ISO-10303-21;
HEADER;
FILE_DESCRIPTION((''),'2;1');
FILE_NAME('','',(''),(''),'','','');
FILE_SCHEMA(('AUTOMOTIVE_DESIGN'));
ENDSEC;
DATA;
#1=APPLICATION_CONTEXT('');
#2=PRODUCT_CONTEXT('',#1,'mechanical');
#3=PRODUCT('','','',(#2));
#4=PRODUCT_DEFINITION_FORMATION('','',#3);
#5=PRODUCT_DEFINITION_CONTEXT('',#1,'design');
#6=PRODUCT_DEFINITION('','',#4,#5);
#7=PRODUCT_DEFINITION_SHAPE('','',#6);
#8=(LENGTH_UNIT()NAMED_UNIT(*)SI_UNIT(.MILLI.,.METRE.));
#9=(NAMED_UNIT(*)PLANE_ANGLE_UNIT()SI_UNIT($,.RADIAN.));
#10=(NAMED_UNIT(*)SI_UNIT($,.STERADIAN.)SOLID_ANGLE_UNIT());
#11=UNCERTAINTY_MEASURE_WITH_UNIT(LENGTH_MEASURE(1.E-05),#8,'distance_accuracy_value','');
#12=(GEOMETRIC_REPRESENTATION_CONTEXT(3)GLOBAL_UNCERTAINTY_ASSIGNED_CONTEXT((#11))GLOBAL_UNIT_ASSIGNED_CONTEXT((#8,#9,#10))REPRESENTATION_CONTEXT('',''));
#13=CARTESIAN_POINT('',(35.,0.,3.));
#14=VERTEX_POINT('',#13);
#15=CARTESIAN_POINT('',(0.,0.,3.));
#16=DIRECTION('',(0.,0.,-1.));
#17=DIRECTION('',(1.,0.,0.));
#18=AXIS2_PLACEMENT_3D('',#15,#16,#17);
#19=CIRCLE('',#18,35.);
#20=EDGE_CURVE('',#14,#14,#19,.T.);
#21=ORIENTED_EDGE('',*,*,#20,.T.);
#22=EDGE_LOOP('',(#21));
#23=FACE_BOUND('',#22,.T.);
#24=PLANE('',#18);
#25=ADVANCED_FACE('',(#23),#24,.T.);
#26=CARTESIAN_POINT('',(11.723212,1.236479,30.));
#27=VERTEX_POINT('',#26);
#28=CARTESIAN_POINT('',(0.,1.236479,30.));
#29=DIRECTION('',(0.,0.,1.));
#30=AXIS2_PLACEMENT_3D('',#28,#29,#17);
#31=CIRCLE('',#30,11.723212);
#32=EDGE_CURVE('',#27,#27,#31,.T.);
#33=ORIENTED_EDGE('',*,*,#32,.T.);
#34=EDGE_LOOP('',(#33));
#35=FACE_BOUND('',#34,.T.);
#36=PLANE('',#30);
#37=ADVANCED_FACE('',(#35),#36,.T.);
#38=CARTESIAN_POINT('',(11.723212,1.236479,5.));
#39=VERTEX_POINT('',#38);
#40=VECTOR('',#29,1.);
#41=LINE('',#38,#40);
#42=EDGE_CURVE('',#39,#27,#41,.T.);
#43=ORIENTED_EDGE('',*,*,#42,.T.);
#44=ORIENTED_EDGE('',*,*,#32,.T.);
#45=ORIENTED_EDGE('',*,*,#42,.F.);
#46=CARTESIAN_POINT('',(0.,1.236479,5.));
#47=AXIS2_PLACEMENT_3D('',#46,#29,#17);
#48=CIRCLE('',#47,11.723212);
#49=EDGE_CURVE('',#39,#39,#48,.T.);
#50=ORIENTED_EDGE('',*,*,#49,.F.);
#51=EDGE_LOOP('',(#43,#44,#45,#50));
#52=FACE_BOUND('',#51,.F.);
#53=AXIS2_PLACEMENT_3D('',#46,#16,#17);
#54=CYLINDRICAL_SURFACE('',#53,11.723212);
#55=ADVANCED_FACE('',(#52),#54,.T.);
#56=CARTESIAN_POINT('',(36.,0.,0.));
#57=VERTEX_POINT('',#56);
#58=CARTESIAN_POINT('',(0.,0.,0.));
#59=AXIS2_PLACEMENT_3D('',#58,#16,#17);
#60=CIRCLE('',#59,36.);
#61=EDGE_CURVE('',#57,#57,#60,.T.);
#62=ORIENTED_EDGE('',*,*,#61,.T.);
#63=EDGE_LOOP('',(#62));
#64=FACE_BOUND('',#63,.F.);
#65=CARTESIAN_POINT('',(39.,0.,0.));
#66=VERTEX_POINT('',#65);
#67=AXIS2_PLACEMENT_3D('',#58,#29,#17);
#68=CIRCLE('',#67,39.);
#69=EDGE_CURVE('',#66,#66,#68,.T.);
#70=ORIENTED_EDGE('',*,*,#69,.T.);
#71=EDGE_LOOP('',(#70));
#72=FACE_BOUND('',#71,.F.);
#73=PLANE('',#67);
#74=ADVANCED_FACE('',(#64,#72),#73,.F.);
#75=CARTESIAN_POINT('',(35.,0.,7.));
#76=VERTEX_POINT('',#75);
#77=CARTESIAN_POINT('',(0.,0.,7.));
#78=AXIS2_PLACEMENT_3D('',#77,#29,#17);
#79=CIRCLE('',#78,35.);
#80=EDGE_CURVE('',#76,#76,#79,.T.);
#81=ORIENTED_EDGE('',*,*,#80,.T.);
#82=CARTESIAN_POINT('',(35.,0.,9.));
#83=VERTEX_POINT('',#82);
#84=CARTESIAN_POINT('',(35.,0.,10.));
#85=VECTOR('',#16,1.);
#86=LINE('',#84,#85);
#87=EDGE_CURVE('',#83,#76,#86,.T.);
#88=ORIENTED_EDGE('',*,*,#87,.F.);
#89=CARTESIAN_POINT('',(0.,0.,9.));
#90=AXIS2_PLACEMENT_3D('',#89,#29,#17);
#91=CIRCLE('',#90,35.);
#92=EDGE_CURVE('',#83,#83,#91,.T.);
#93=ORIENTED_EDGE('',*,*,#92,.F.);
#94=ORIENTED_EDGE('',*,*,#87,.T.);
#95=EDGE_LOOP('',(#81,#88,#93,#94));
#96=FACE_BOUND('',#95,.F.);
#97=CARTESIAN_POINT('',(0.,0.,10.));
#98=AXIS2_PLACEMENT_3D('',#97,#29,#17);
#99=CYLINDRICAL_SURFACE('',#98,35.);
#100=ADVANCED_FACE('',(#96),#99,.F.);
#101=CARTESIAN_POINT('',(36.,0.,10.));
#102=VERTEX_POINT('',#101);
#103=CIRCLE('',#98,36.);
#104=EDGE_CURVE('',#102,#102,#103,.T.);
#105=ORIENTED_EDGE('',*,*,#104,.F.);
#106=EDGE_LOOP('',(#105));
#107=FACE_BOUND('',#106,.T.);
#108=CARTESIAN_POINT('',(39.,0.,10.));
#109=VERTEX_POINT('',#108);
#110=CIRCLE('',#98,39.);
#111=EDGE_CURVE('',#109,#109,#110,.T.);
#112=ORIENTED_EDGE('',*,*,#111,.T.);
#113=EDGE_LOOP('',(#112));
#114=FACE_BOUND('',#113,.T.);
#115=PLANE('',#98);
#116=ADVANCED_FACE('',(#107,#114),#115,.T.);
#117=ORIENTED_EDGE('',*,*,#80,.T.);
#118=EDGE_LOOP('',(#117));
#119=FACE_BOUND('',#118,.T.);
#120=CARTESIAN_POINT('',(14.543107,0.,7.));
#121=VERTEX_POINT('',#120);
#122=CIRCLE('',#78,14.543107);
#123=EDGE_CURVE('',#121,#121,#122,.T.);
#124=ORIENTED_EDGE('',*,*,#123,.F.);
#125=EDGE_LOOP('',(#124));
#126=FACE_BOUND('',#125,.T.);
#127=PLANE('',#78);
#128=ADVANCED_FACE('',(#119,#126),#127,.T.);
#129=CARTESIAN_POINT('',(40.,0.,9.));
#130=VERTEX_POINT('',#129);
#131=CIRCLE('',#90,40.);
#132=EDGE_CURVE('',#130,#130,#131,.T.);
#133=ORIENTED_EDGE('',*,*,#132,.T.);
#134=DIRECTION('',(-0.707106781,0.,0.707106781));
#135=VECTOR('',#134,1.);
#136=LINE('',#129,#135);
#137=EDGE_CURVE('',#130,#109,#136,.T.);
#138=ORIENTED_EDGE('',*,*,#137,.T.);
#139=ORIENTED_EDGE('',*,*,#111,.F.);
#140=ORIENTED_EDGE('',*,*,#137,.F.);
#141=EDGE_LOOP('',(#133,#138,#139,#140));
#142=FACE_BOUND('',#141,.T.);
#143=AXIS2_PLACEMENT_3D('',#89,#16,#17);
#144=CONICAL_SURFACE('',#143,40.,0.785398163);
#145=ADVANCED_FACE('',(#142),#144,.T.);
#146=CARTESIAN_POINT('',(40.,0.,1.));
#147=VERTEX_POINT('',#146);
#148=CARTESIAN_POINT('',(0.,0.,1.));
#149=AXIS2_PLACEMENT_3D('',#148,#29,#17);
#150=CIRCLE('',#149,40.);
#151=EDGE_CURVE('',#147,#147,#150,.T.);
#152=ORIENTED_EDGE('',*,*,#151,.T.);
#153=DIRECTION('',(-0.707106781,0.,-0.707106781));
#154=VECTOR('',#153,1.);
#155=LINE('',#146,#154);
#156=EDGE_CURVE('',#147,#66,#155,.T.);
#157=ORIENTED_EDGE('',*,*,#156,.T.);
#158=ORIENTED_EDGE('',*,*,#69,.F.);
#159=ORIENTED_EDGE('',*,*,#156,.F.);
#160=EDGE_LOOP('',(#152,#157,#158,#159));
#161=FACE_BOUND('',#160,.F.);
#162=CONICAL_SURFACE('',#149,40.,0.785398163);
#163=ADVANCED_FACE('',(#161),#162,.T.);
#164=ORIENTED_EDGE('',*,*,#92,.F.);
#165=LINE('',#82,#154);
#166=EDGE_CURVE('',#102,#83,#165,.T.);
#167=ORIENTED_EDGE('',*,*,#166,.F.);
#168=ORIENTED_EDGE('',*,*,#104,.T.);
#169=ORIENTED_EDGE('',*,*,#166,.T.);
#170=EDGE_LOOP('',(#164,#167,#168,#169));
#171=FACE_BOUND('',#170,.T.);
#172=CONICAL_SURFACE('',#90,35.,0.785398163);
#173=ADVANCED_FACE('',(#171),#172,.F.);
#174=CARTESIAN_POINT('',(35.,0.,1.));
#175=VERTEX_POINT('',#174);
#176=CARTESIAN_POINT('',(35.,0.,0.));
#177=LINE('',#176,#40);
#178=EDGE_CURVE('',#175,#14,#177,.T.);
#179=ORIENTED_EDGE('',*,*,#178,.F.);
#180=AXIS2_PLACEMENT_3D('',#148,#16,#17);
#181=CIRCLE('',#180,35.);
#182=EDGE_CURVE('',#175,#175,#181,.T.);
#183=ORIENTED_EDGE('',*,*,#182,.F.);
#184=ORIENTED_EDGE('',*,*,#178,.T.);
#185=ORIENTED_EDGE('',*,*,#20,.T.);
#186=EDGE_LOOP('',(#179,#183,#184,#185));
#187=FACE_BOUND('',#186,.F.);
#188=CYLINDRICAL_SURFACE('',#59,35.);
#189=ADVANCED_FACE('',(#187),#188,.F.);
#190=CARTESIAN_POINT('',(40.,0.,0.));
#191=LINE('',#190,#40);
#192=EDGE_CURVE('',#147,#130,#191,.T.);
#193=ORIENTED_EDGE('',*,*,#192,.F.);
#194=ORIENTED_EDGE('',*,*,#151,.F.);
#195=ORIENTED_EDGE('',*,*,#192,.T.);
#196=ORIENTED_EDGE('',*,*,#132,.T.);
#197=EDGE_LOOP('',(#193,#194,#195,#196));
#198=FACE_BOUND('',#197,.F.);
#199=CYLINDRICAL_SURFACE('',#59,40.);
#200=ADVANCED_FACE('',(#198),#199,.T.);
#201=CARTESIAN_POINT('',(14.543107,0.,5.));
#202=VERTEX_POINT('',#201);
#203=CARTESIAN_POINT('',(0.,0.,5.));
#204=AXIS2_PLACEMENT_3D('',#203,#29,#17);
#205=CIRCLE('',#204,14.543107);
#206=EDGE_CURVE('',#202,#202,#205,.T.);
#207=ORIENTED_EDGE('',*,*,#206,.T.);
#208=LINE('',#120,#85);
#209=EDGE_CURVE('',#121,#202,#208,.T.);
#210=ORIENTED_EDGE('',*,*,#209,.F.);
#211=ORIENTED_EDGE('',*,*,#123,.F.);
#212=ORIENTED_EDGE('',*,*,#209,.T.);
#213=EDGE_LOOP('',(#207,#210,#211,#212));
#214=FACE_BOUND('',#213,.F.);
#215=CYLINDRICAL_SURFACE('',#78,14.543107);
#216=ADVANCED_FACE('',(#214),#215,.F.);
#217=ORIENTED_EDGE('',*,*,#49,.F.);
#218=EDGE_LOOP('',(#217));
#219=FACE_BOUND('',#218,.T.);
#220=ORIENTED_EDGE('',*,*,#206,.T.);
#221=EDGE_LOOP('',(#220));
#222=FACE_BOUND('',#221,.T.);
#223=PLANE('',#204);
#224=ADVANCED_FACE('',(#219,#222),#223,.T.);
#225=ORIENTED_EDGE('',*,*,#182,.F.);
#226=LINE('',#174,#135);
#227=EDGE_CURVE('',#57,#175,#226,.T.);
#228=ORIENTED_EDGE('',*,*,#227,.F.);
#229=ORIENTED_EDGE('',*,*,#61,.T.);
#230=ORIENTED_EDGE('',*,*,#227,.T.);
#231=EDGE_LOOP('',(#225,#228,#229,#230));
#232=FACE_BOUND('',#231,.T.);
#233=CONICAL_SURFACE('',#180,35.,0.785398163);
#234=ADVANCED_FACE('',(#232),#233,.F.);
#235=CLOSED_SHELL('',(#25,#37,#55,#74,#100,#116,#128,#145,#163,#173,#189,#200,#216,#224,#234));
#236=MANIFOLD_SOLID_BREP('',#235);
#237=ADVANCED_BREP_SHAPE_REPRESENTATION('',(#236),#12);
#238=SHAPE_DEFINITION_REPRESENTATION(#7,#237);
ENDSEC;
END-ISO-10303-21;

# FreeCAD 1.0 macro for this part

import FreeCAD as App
import Part
import Sketcher


def edges_at(feature, points):
    """Names of the edges that pass closest to the given points."""
    edges = feature.Shape.Edges
    near = lambda p: min(range(len(edges)), key=lambda i: edges[i].distToShape(Part.Vertex(*p))[0])
    return sorted({f"Edge{near(p) + 1}" for p in points})

doc = App.newDocument("Part")
body = doc.addObject("PartDesign::Body", "Body")

sketch1 = body.newObject("Sketcher::SketchObject", "Sketch")
sketch1.AttachmentSupport = (doc.getObject("XY_Plane"), [""])
sketch1.MapMode = "FlatFace"
sketch1.addGeometry(Part.Circle(App.Vector(0, 0, 0), App.Vector(0, 0, 1), 40), False)
sketch1.addConstraint([
    Sketcher.Constraint("Coincident", 0, 3, -1, 1),
    Sketcher.Constraint("Diameter", 0, 80.0),
])
pad1 = body.newObject("PartDesign::Pad", "Pad")
pad1.Profile = sketch1
pad1.Length = 10

sketch2 = body.newObject("Sketcher::SketchObject", "Sketch001")
sketch2.AttachmentSupport = (doc.getObject("XY_Plane"), [""])
sketch2.MapMode = "FlatFace"
sketch2.AttachmentOffset = App.Placement(App.Vector(0, 0, 10), App.Rotation())
sketch2.addGeometry(Part.Circle(App.Vector(0, 0, 0), App.Vector(0, 0, 1), 35), False)
sketch2.addConstraint([
    Sketcher.Constraint("Coincident", 0, 3, -1, 1),
    Sketcher.Constraint("Diameter", 0, 70.0),
])
pocket1 = body.newObject("PartDesign::Pocket", "Pocket")
pocket1.Profile = sketch2
pocket1.Length = 3

sketch3 = body.newObject("Sketcher::SketchObject", "Sketch002")
sketch3.AttachmentSupport = (doc.getObject("XY_Plane"), [""])
sketch3.MapMode = "FlatFace"
sketch3.addGeometry(Part.Circle(App.Vector(0, 0, 0), App.Vector(0, 0, 1), 35), False)
sketch3.addConstraint([
    Sketcher.Constraint("Coincident", 0, 3, -1, 1),
    Sketcher.Constraint("Diameter", 0, 70.0),
])
pocket2 = body.newObject("PartDesign::Pocket", "Pocket001")
pocket2.Profile = sketch3
pocket2.Length = 3
pocket2.Reversed = True
doc.recompute()

chamfer = body.newObject("PartDesign::Chamfer", "Chamfer")
chamfer.Base = (pocket2, edges_at(pocket2, [
    (-35, 0, 10),
    (-40, 0, 10),
    (-40, 0, 0),
    (-35, 0, 0),
]))
chamfer.Size = 1

sketch4 = body.newObject("Sketcher::SketchObject", "Sketch003")
sketch4.AttachmentSupport = (doc.getObject("XY_Plane"), [""])
sketch4.MapMode = "FlatFace"
sketch4.AttachmentOffset = App.Placement(App.Vector(0, 0, 7), App.Rotation())
sketch4.addGeometry(Part.Circle(App.Vector(0, 0, 0), App.Vector(0, 0, 1), 14.543107), False)
sketch4.addConstraint([
    Sketcher.Constraint("Coincident", 0, 3, -1, 1),
    Sketcher.Constraint("Diameter", 0, 29.086214),
])
pocket3 = body.newObject("PartDesign::Pocket", "Pocket002")
pocket3.Profile = sketch4
pocket3.Length = 2

sketch5 = body.newObject("Sketcher::SketchObject", "Sketch004")
sketch5.AttachmentSupport = (doc.getObject("XY_Plane"), [""])
sketch5.MapMode = "FlatFace"
sketch5.AttachmentOffset = App.Placement(App.Vector(0, 0, 5), App.Rotation())
sketch5.addGeometry(Part.Circle(App.Vector(0, 1.236479, 0), App.Vector(0, 0, 1), 11.723212), False)
sketch5.addConstraint([
    Sketcher.Constraint("PointOnObject", 0, 3, -2),
    Sketcher.Constraint("Diameter", 0, 23.446424),
    Sketcher.Constraint("DistanceY", -1, 1, 0, 3, 1.236479),
])
pad2 = body.newObject("PartDesign::Pad", "Pad001")
pad2.Profile = sketch5
pad2.Length = 25

doc.recompute()
